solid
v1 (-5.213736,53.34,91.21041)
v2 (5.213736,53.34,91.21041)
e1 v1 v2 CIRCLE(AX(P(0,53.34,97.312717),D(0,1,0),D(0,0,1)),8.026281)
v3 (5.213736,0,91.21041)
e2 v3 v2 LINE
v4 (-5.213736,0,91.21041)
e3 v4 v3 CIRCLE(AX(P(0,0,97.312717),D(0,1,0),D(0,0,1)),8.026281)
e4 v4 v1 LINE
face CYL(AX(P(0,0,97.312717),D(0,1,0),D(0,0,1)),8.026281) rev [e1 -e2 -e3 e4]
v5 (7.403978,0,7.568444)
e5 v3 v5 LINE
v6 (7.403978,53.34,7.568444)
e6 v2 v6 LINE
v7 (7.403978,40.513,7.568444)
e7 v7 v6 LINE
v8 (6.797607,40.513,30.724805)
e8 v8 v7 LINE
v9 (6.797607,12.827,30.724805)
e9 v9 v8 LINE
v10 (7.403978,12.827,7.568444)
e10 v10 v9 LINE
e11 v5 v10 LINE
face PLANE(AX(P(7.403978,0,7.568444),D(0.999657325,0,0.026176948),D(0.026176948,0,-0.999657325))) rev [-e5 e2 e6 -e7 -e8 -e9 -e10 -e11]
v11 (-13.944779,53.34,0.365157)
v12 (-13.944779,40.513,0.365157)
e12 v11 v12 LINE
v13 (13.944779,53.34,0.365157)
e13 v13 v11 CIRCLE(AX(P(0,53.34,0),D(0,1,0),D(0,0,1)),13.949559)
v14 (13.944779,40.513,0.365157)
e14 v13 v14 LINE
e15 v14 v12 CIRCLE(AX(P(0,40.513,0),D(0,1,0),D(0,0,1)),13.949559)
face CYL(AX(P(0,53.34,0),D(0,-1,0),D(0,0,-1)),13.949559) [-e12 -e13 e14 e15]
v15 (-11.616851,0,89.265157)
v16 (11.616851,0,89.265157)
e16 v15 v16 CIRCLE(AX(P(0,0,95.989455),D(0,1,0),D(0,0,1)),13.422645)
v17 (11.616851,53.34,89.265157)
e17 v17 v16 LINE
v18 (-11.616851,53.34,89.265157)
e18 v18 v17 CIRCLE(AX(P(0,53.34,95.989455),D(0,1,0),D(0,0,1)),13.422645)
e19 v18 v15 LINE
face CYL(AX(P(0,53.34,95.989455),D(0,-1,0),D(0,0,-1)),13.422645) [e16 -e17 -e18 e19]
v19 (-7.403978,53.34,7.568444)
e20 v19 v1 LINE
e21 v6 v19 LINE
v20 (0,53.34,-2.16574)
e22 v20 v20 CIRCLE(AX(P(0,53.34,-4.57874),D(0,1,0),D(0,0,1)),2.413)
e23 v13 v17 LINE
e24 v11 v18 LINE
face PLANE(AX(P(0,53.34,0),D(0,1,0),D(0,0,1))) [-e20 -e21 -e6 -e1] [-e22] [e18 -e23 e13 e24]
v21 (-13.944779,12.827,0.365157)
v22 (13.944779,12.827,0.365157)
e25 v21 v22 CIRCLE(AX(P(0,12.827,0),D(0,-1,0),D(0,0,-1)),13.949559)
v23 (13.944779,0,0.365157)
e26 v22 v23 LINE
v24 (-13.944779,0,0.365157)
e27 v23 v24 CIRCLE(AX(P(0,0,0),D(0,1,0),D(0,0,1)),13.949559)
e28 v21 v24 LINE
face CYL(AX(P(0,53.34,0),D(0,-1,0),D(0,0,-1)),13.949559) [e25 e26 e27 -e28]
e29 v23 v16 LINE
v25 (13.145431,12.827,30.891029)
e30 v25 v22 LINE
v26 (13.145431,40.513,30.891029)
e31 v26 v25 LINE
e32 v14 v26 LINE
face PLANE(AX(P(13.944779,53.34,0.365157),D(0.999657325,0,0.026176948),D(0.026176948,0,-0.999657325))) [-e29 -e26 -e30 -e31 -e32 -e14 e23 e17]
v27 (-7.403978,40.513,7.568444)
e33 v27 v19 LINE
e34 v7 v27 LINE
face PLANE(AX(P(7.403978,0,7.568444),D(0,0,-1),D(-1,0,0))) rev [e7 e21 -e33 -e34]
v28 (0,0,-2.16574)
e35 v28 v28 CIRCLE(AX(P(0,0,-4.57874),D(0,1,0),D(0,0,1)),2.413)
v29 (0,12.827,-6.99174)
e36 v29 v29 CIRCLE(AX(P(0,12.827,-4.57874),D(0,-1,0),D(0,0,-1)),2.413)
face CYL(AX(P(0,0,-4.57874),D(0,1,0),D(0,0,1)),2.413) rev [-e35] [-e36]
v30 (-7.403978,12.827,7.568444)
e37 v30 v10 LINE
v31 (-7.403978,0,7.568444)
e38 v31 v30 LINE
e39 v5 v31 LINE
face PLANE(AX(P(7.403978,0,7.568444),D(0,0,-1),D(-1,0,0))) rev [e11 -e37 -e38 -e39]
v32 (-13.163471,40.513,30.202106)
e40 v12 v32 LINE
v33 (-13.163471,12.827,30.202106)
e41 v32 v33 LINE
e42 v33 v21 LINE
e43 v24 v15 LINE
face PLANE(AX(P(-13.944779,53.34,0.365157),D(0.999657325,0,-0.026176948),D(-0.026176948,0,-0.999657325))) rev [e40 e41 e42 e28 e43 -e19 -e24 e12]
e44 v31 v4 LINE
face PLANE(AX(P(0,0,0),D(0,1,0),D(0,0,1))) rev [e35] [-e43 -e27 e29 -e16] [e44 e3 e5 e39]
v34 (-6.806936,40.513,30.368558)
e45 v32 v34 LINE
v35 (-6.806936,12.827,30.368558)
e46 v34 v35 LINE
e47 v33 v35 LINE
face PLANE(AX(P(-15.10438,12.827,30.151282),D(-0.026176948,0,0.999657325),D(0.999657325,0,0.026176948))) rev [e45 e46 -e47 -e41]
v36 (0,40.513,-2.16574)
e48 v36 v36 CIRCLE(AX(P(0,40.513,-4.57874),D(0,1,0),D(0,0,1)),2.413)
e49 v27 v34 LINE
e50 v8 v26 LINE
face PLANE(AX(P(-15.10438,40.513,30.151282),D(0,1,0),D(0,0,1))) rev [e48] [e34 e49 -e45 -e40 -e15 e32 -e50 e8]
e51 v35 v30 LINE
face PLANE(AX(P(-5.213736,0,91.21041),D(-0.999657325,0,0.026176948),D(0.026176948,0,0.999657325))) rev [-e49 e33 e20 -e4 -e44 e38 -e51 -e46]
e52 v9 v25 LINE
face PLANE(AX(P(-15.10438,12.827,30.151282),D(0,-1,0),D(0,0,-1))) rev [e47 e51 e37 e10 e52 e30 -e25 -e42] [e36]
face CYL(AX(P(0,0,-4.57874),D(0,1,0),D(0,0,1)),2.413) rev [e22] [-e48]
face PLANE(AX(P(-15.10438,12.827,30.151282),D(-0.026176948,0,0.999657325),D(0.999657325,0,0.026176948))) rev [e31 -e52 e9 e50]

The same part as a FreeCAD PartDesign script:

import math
import FreeCAD as App
import Part
import Sketcher
Q = App.Units.Quantity


def add_polygon(sketch, points):
    """Adds a closed chain of lines whose ends are joined by coincident constraints."""
    first, n = sketch.GeometryCount, len(points)
    for a, b in zip(points, points[1:] + points[:1]):
        sketch.addGeometry(Part.LineSegment(App.Vector(*a, 0), App.Vector(*b, 0)), False)
    for i in range(n):
        sketch.addConstraint(Sketcher.Constraint("Coincident", first + i, 2, first + (i + 1) % n, 1))

doc = App.newDocument("Part")
body = doc.addObject("PartDesign::Body", "Body")

# Sketch on XZ plane
sketch1 = doc.addObject("Sketcher::SketchObject", "Sketch")
body.addObject(sketch1)
sketch1.AttachmentSupport = (doc.XZ_Plane, [""])
sketch1.MapMode = "FlatFace"
sketch1.addGeometry([
    Part.LineSegment(App.Vector(-13.944779, 0.365157, 0), App.Vector(-11.616851, 89.265157, 0)),
    Part.ArcOfCircle(Part.Circle(App.Vector(0, 95.989455, 0), App.Vector(0, 0, 1), 13.422645), math.radians(-30.063975), math.radians(210.063975)),
    Part.LineSegment(App.Vector(11.616851, 89.265157, 0), App.Vector(13.944779, 0.365157, 0)),
    Part.ArcOfCircle(Part.Circle(App.Vector(0, 0, 0), App.Vector(0, 0, 1), 13.949559), math.radians(178.5), math.radians(361.5)),
], False)
sketch1.addConstraint([
    Sketcher.Constraint("Coincident", 0, 2, 1, 2),
    Sketcher.Constraint("Coincident", 1, 1, 2, 1),
    Sketcher.Constraint("Tangent", 2, 2, 3, 2),
    Sketcher.Constraint("Tangent", 3, 1, 0, 1),
    Sketcher.Constraint("Coincident", 3, 3, -1, 1),
    Sketcher.Constraint("Symmetric", 0, 2, 1, 1, -2),
    Sketcher.Constraint("Angle", 0, Q("88.5 deg")),
    Sketcher.Constraint("DistanceY", 2, 2, 1, 1, Q("3.5 in")),
    Sketcher.Constraint("Radius", 3, 13.949559),
    Sketcher.Constraint("Radius", 1, 13.422645),
])
pad1 = doc.addObject("PartDesign::Pad", "Pad")
body.addObject(pad1)
pad1.Profile = sketch1
pad1.Length = Q("2.1 in")
pad1.Reversed = True

# Sketch on an angled plane
sketch2 = doc.addObject("Sketcher::SketchObject", "Sketch001")
body.addObject(sketch2)
sketch2.Placement = App.Placement(App.Vector(13.944779, 0, 0.365157), App.Rotation(App.Vector(0.026176948, 0, -0.999657325), App.Vector(0, 1, 0), App.Vector(0.999657325, 0, 0.026176948), "ZXY"))
add_polygon(sketch2, [(-30.536336, 40.513), (-30.536336, 12.827), (30.536336, 12.827), (30.536336, 40.513)])  # lines 0-3
sketch2.addConstraint([
    Sketcher.Constraint("Vertical", 0),
    Sketcher.Constraint("Horizontal", 1),
    Sketcher.Constraint("Vertical", 2),
    Sketcher.Constraint("Horizontal", 3),
    Sketcher.Constraint("DistanceY", 0, 2, 0, 1, Q("1.09 in")),
    Sketcher.Constraint("DistanceY", -1, 1, 0, 2, Q("0.505 in")),
    Sketcher.Constraint("DistanceX", 1, 1, 1, 2, 61.072672),
    Sketcher.Constraint("DistanceX", 0, 2, -1, 1, 30.536336),
])
pocket1 = doc.addObject("PartDesign::Pocket", "Pocket")
body.addObject(pocket1)
pocket1.Profile = sketch2
pocket1.Type = "ThroughAll"

# Sketch on XZ plane
sketch3 = doc.addObject("Sketcher::SketchObject", "Sketch002")
body.addObject(sketch3)
sketch3.AttachmentSupport = (doc.XZ_Plane, [""])
sketch3.MapMode = "FlatFace"
sketch3.AttachmentOffset = App.Placement(App.Vector(0, 0, -2.1 * 25.4), App.Rotation())
add_polygon(sketch3, [(-28.676, -28.676), (-28.676, 124.138), (28.676, 124.138), (28.676, -28.676)])  # lines 0-3
sketch3.addGeometry(Part.LineSegment(App.Vector(-11.616851, 89.265157, 0), App.Vector(-13.944779, 0.365157, 0)), False)  # 4
sketch3.addGeometry(Part.ArcOfCircle(Part.Circle(App.Vector(0, 0, 0), App.Vector(0, 0, 1), 13.949559), math.radians(178.5), math.radians(361.5)), False)  # 5
sketch3.addGeometry(Part.LineSegment(App.Vector(13.944779, 0.365157, 0), App.Vector(11.616851, 89.265157, 0)), False)  # 6
sketch3.addGeometry(Part.ArcOfCircle(Part.Circle(App.Vector(0, 95.989455, 0), App.Vector(0, 0, 1), 13.422645), math.radians(-30.063975), math.radians(210.063975)), False)  # 7
sketch3.addGeometry(Part.LineSegment(App.Vector(5.213736, 91.21041, 0), App.Vector(7.403978, 7.568444, 0)), False)  # 8
sketch3.addGeometry(Part.LineSegment(App.Vector(7.403978, 7.568444, 0), App.Vector(-7.403978, 7.568444, 0)), False)  # 9
sketch3.addGeometry(Part.LineSegment(App.Vector(-7.403978, 7.568444, 0), App.Vector(-5.213736, 91.21041, 0)), False)  # 10
sketch3.addGeometry(Part.ArcOfCircle(Part.Circle(App.Vector(0, 97.312717, 0), App.Vector(0, 0, 1), 8.026281), math.radians(-49.489834), math.radians(229.489834)), False)  # 11
sketch3.addConstraint([
    Sketcher.Constraint("Tangent", 4, 2, 5, 1),
    Sketcher.Constraint("Tangent", 5, 2, 6, 1),
    Sketcher.Constraint("Coincident", 6, 2, 7, 1),
    Sketcher.Constraint("Coincident", 7, 2, 4, 1),
    Sketcher.Constraint("Coincident", 8, 2, 9, 1),
    Sketcher.Constraint("Coincident", 9, 2, 10, 1),
    Sketcher.Constraint("Coincident", 10, 2, 11, 2),
    Sketcher.Constraint("Coincident", 11, 1, 8, 1),
    Sketcher.Constraint("Vertical", 0),
    Sketcher.Constraint("Horizontal", 1),
    Sketcher.Constraint("Vertical", 2),
    Sketcher.Constraint("Horizontal", 3),
    Sketcher.Constraint("Horizontal", 9),
    Sketcher.Constraint("Coincident", 5, 3, -1, 1),
    Sketcher.Constraint("Symmetric", 6, 2, 7, 2, -2),
    Sketcher.Constraint("Symmetric", 10, 2, 11, 1, -2),
    Sketcher.Constraint("Parallel", 6, 8),
    Sketcher.Constraint("Parallel", 4, 10),
    Sketcher.Constraint("Angle", 4, Q("-91.5 deg")),
    Sketcher.Constraint("DistanceY", 5, 2, 6, 2, Q("3.5 in")),
    Sketcher.Constraint("Radius", 5, 13.949559),
    Sketcher.Constraint("Radius", 11, 8.026281),
    Sketcher.Constraint("DistanceX", 1, 1, 1, 2, 57.352),
    Sketcher.Constraint("DistanceY", 0, 1, 0, 2, 152.814),
    Sketcher.Constraint("Radius", 7, 13.422645),
    Sketcher.Constraint("DistanceX", 0, 2, -1, 1, 28.676),
    Sketcher.Constraint("DistanceY", -1, 1, 0, 2, 124.138),
    Sketcher.Constraint("DistanceX", 8, 2, 5, 2, 6.540801),
    Sketcher.Constraint("Distance", 8, 83.670638),
    Sketcher.Constraint("DistanceY", -1, 1, 10, 2, 91.21041),
])
pocket2 = doc.addObject("PartDesign::Pocket", "Pocket001")
body.addObject(pocket2)
pocket2.Profile = sketch3
pocket2.Type = "ThroughAll"
pocket2.Reversed = True

# Sketch on XZ plane
sketch4 = doc.addObject("Sketcher::SketchObject", "Sketch003")
body.addObject(sketch4)
sketch4.AttachmentSupport = (doc.XZ_Plane, [""])
sketch4.MapMode = "FlatFace"
sketch4.AttachmentOffset = App.Placement(App.Vector(0, 0, -2.1 * 25.4), App.Rotation())
sketch4.addGeometry(Part.Circle(App.Vector(0, -4.57874, 0), App.Vector(0, 0, 1), 2.413), False)
sketch4.addConstraint([
    Sketcher.Constraint("PointOnObject", 0, 3, -2),
    Sketcher.Constraint("Diameter", 0, Q("0.19 in")),
    Sketcher.Constraint("DistanceY", 0, 3, -1, 1, 4.57874),
])
pocket3 = doc.addObject("PartDesign::Pocket", "Pocket002")
body.addObject(pocket3)
pocket3.Profile = sketch4
pocket3.Type = "ThroughAll"
pocket3.Reversed = True

doc.recompute()
